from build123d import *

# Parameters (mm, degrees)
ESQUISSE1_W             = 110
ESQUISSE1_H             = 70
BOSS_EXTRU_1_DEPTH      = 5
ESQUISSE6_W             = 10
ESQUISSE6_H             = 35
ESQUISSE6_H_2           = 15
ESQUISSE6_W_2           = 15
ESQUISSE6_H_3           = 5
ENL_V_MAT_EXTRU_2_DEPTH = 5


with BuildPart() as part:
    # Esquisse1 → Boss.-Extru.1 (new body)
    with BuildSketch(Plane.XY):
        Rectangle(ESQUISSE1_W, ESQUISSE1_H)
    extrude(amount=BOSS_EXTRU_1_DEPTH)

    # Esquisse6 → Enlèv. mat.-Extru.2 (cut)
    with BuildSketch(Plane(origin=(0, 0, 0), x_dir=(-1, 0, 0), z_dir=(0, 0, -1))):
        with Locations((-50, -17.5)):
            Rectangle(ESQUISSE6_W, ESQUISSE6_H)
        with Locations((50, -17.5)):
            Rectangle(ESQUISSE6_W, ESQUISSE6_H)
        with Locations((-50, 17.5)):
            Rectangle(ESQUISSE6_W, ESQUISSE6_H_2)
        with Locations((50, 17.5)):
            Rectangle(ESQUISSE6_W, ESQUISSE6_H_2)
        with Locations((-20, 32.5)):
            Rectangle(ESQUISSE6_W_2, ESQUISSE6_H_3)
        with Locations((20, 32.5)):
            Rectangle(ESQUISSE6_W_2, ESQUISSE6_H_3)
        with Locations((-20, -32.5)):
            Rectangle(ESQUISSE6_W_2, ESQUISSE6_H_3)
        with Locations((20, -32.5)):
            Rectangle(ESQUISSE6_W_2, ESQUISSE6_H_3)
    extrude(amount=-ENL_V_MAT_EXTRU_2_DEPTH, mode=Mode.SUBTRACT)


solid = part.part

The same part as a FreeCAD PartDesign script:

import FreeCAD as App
import Part
import Sketcher
from FreeCAD import Vector

doc = App.newDocument("Part")
body = doc.addObject("PartDesign::Body", "Body")

# Sketch on XY plane
sketch1 = body.newObject("Sketcher::SketchObject", "Sketch")
sketch1.AttachmentSupport = (doc.getObject("XY_Plane"), [""])
sketch1.MapMode = "FlatFace"
sketch1.addGeometry(Part.LineSegment(Vector(-55, 35, 0), Vector(-55, -35, 0)), False)
sketch1.addGeometry(Part.LineSegment(Vector(-55, -35, 0), Vector(55, -35, 0)), False)
sketch1.addGeometry(Part.LineSegment(Vector(55, -35, 0), Vector(55, 35, 0)), False)
sketch1.addGeometry(Part.LineSegment(Vector(55, 35, 0), Vector(-55, 35, 0)), False)
sketch1.addConstraint(Sketcher.Constraint("Coincident", 0, 2, 1, 1))
sketch1.addConstraint(Sketcher.Constraint("Coincident", 1, 2, 2, 1))
sketch1.addConstraint(Sketcher.Constraint("Coincident", 2, 2, 3, 1))
sketch1.addConstraint(Sketcher.Constraint("Coincident", 3, 2, 0, 1))
sketch1.addConstraint(Sketcher.Constraint("Vertical", 0))
sketch1.addConstraint(Sketcher.Constraint("Horizontal", 1))
sketch1.addConstraint(Sketcher.Constraint("Vertical", 2))
sketch1.addConstraint(Sketcher.Constraint("Horizontal", 3))
sketch1.addConstraint(Sketcher.Constraint("Symmetric", 0, 2, 2, 2, -1, 1))
sketch1.addConstraint(Sketcher.Constraint("DistanceX", 1, 1, 1, 2, 110.0))
sketch1.addConstraint(Sketcher.Constraint("DistanceY", 0, 2, 0, 1, 70.0))
pad1 = body.newObject("PartDesign::Pad", "Pad")
pad1.Profile = sketch1
pad1.Length = 5

# Sketch on XY plane
sketch2 = body.newObject("Sketcher::SketchObject", "Sketch001")
sketch2.AttachmentSupport = (doc.getObject("XY_Plane"), [""])
sketch2.MapMode = "FlatFace"
sketch2.addGeometry(Part.LineSegment(Vector(55, 0, 0), Vector(55, -35, 0)), False)
sketch2.addGeometry(Part.LineSegment(Vector(55, -35, 0), Vector(45, -35, 0)), False)
sketch2.addGeometry(Part.LineSegment(Vector(45, -35, 0), Vector(45, 0, 0)), False)
sketch2.addGeometry(Part.LineSegment(Vector(45, 0, 0), Vector(55, 0, 0)), False)
sketch2.addGeometry(Part.LineSegment(Vector(-45, 0, 0), Vector(-45, -35, 0)), False)
sketch2.addGeometry(Part.LineSegment(Vector(-45, -35, 0), Vector(-55, -35, 0)), False)
sketch2.addGeometry(Part.LineSegment(Vector(-55, -35, 0), Vector(-55, 0, 0)), False)
sketch2.addGeometry(Part.LineSegment(Vector(-55, 0, 0), Vector(-45, 0, 0)), False)
sketch2.addGeometry(Part.LineSegment(Vector(55, 25, 0), Vector(55, 10, 0)), False)
sketch2.addGeometry(Part.LineSegment(Vector(55, 10, 0), Vector(45, 10, 0)), False)
sketch2.addGeometry(Part.LineSegment(Vector(45, 10, 0), Vector(45, 25, 0)), False)
sketch2.addGeometry(Part.LineSegment(Vector(45, 25, 0), Vector(55, 25, 0)), False)
sketch2.addGeometry(Part.LineSegment(Vector(-45, 25, 0), Vector(-45, 10, 0)), False)
sketch2.addGeometry(Part.LineSegment(Vector(-45, 10, 0), Vector(-55, 10, 0)), False)
sketch2.addGeometry(Part.LineSegment(Vector(-55, 10, 0), Vector(-55, 25, 0)), False)
sketch2.addGeometry(Part.LineSegment(Vector(-55, 25, 0), Vector(-45, 25, 0)), False)
sketch2.addGeometry(Part.LineSegment(Vector(28, 35, 0), Vector(28, 30, 0)), False)
sketch2.addGeometry(Part.LineSegment(Vector(28, 30, 0), Vector(12, 30, 0)), False)
sketch2.addGeometry(Part.LineSegment(Vector(12, 30, 0), Vector(12, 35, 0)), False)
sketch2.addGeometry(Part.LineSegment(Vector(12, 35, 0), Vector(28, 35, 0)), False)
sketch2.addGeometry(Part.LineSegment(Vector(-12, 35, 0), Vector(-12, 30, 0)), False)
sketch2.addGeometry(Part.LineSegment(Vector(-12, 30, 0), Vector(-28, 30, 0)), False)
sketch2.addGeometry(Part.LineSegment(Vector(-28, 30, 0), Vector(-28, 35, 0)), False)
sketch2.addGeometry(Part.LineSegment(Vector(-28, 35, 0), Vector(-12, 35, 0)), False)
sketch2.addGeometry(Part.LineSegment(Vector(28, -30, 0), Vector(28, -35, 0)), False)
sketch2.addGeometry(Part.LineSegment(Vector(28, -35, 0), Vector(12, -35, 0)), False)
sketch2.addGeometry(Part.LineSegment(Vector(12, -35, 0), Vector(12, -30, 0)), False)
sketch2.addGeometry(Part.LineSegment(Vector(12, -30, 0), Vector(28, -30, 0)), False)
sketch2.addGeometry(Part.LineSegment(Vector(-12, -30, 0), Vector(-12, -35, 0)), False)
sketch2.addGeometry(Part.LineSegment(Vector(-12, -35, 0), Vector(-28, -35, 0)), False)
sketch2.addGeometry(Part.LineSegment(Vector(-28, -35, 0), Vector(-28, -30, 0)), False)
sketch2.addGeometry(Part.LineSegment(Vector(-28, -30, 0), Vector(-12, -30, 0)), False)
sketch2.addConstraint(Sketcher.Constraint("Coincident", 0, 2, 1, 1))
sketch2.addConstraint(Sketcher.Constraint("Coincident", 1, 2, 2, 1))
sketch2.addConstraint(Sketcher.Constraint("Coincident", 2, 2, 3, 1))
sketch2.addConstraint(Sketcher.Constraint("Coincident", 3, 2, 0, 1))
sketch2.addConstraint(Sketcher.Constraint("Coincident", 4, 2, 5, 1))
sketch2.addConstraint(Sketcher.Constraint("Coincident", 5, 2, 6, 1))
sketch2.addConstraint(Sketcher.Constraint("Coincident", 6, 2, 7, 1))
sketch2.addConstraint(Sketcher.Constraint("Coincident", 7, 2, 4, 1))
sketch2.addConstraint(Sketcher.Constraint("Coincident", 8, 2, 9, 1))
sketch2.addConstraint(Sketcher.Constraint("Coincident", 9, 2, 10, 1))
sketch2.addConstraint(Sketcher.Constraint("Coincident", 10, 2, 11, 1))
sketch2.addConstraint(Sketcher.Constraint("Coincident", 11, 2, 8, 1))
sketch2.addConstraint(Sketcher.Constraint("Coincident", 12, 2, 13, 1))
sketch2.addConstraint(Sketcher.Constraint("Coincident", 13, 2, 14, 1))
sketch2.addConstraint(Sketcher.Constraint("Coincident", 14, 2, 15, 1))
sketch2.addConstraint(Sketcher.Constraint("Coincident", 15, 2, 12, 1))
sketch2.addConstraint(Sketcher.Constraint("Coincident", 16, 2, 17, 1))
sketch2.addConstraint(Sketcher.Constraint("Coincident", 17, 2, 18, 1))
sketch2.addConstraint(Sketcher.Constraint("Coincident", 18, 2, 19, 1))
sketch2.addConstraint(Sketcher.Constraint("Coincident", 19, 2, 16, 1))
sketch2.addConstraint(Sketcher.Constraint("Coincident", 20, 2, 21, 1))
sketch2.addConstraint(Sketcher.Constraint("Coincident", 21, 2, 22, 1))
sketch2.addConstraint(Sketcher.Constraint("Coincident", 22, 2, 23, 1))
sketch2.addConstraint(Sketcher.Constraint("Coincident", 23, 2, 20, 1))
sketch2.addConstraint(Sketcher.Constraint("Coincident", 24, 2, 25, 1))
sketch2.addConstraint(Sketcher.Constraint("Coincident", 25, 2, 26, 1))
sketch2.addConstraint(Sketcher.Constraint("Coincident", 26, 2, 27, 1))
sketch2.addConstraint(Sketcher.Constraint("Coincident", 27, 2, 24, 1))
sketch2.addConstraint(Sketcher.Constraint("Coincident", 28, 2, 29, 1))
sketch2.addConstraint(Sketcher.Constraint("Coincident", 29, 2, 30, 1))
sketch2.addConstraint(Sketcher.Constraint("Coincident", 30, 2, 31, 1))
sketch2.addConstraint(Sketcher.Constraint("Coincident", 31, 2, 28, 1))
sketch2.addConstraint(Sketcher.Constraint("Vertical", 0))
sketch2.addConstraint(Sketcher.Constraint("Horizontal", 1))
sketch2.addConstraint(Sketcher.Constraint("Vertical", 2))
sketch2.addConstraint(Sketcher.Constraint("Horizontal", 3))
sketch2.addConstraint(Sketcher.Constraint("Vertical", 4))
sketch2.addConstraint(Sketcher.Constraint("Horizontal", 5))
sketch2.addConstraint(Sketcher.Constraint("Vertical", 6))
sketch2.addConstraint(Sketcher.Constraint("Horizontal", 7))
sketch2.addConstraint(Sketcher.Constraint("Vertical", 8))
sketch2.addConstraint(Sketcher.Constraint("Horizontal", 9))
sketch2.addConstraint(Sketcher.Constraint("Vertical", 10))
sketch2.addConstraint(Sketcher.Constraint("Horizontal", 11))
sketch2.addConstraint(Sketcher.Constraint("Vertical", 12))
sketch2.addConstraint(Sketcher.Constraint("Horizontal", 13))
sketch2.addConstraint(Sketcher.Constraint("Vertical", 14))
sketch2.addConstraint(Sketcher.Constraint("Horizontal", 15))
sketch2.addConstraint(Sketcher.Constraint("Vertical", 16))
sketch2.addConstraint(Sketcher.Constraint("Horizontal", 17))
sketch2.addConstraint(Sketcher.Constraint("Vertical", 18))
sketch2.addConstraint(Sketcher.Constraint("Horizontal", 19))
sketch2.addConstraint(Sketcher.Constraint("Vertical", 20))
sketch2.addConstraint(Sketcher.Constraint("Horizontal", 21))
sketch2.addConstraint(Sketcher.Constraint("Vertical", 22))
sketch2.addConstraint(Sketcher.Constraint("Horizontal", 23))
sketch2.addConstraint(Sketcher.Constraint("Vertical", 24))
sketch2.addConstraint(Sketcher.Constraint("Horizontal", 25))
sketch2.addConstraint(Sketcher.Constraint("Vertical", 26))
sketch2.addConstraint(Sketcher.Constraint("Horizontal", 27))
sketch2.addConstraint(Sketcher.Constraint("Vertical", 28))
sketch2.addConstraint(Sketcher.Constraint("Horizontal", 29))
sketch2.addConstraint(Sketcher.Constraint("Vertical", 30))
sketch2.addConstraint(Sketcher.Constraint("Horizontal", 31))
sketch2.addConstraint(Sketcher.Constraint("Symmetric", 3, 2, 6, 2, -1, 1))
sketch2.addConstraint(Sketcher.Constraint("Symmetric", 22, 2, 24, 2, -1, 1))
sketch2.addConstraint(Sketcher.Constraint("Symmetric", 20, 2, 26, 2, -1, 1))
sketch2.addConstraint(Sketcher.Constraint("Symmetric", 18, 2, 28, 2, -1, 1))
sketch2.addConstraint(Sketcher.Constraint("Symmetric", 16, 2, 30, 2, -1, 1))
sketch2.addConstraint(Sketcher.Constraint("Symmetric", 1, 2, 4, 2, -2))
sketch2.addConstraint(Sketcher.Constraint("Symmetric", 9, 2, 12, 2, -2))
sketch2.addConstraint(Sketcher.Constraint("Symmetric", 11, 2, 14, 2, -2))
sketch2.addConstraint(Sketcher.Constraint("Symmetric", 17, 2, 20, 2, -2))
sketch2.addConstraint(Sketcher.Constraint("Symmetric", 19, 2, 22, 2, -2))
sketch2.addConstraint(Sketcher.Constraint("PointOnObject", 2, 2, -1))
sketch2.addConstraint(Sketcher.Constraint("Horizontal", 5, 2, 24, 2))
sketch2.addConstraint(Sketcher.Constraint("Vertical", 3, 2, 8, 2))
sketch2.addConstraint(Sketcher.Constraint("Vertical", 2, 2, 9, 2))
sketch2.addConstraint(Sketcher.Constraint("Equal", 31, 8))
sketch2.addConstraint(Sketcher.Constraint("DistanceX", 1, 2, 1, 1, 10.0))
sketch2.addConstraint(Sketcher.Constraint("DistanceX", 17, 2, 17, 1, 15.0))
sketch2.addConstraint(Sketcher.Constraint("DistanceY", 0, 2, 0, 1, 35.0))
sketch2.addConstraint(Sketcher.Constraint("DistanceY", 16, 2, 16, 1, 5.0))
sketch2.addConstraint(Sketcher.Constraint("DistanceX", -1, 1, 0, 2, 55.0))
sketch2.addConstraint(Sketcher.Constraint("DistanceY", -1, 1, 8, 2, 10.0))
sketch2.addConstraint(Sketcher.Constraint("DistanceX", 20, 2, 17, 2, 25.0))
pocket1 = body.newObject("PartDesign::Pocket", "Pocket")
pocket1.Profile = sketch2
pocket1.Length = 5
pocket1.Reversed = True

doc.recompute()
